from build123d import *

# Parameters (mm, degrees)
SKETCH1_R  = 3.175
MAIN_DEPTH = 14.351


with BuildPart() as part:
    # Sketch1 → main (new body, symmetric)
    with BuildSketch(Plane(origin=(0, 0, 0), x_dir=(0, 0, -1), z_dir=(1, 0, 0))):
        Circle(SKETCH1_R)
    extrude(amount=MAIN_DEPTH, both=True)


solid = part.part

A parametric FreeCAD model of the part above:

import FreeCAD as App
import Part
import Sketcher

V = App.Vector
Q = App.Units.Quantity

doc = App.newDocument("Part")
body = doc.addObject("PartDesign::Body", "Body")

sketch1 = doc.addObject("Sketcher::SketchObject", "Sketch")
body.addObject(sketch1)
sketch1.AttachmentSupport = (doc.YZ_Plane, [""])
sketch1.MapMode = "FlatFace"
sketch1.addGeometry(Part.Circle(V(0, 0, 0), V(0, 0, 1), 3.2), False)
sketch1.addConstraint([
    Sketcher.Constraint("Coincident", 0, 3, -1, 1),
    Sketcher.Constraint("Diameter", 0, Q("0.25 in")),
])
pad1 = doc.addObject("PartDesign::Pad", "Pad")
body.addObject(pad1)
pad1.Profile = sketch1
pad1.Length = Q("1.13 in")
pad1.Midplane = True

doc.recompute()
